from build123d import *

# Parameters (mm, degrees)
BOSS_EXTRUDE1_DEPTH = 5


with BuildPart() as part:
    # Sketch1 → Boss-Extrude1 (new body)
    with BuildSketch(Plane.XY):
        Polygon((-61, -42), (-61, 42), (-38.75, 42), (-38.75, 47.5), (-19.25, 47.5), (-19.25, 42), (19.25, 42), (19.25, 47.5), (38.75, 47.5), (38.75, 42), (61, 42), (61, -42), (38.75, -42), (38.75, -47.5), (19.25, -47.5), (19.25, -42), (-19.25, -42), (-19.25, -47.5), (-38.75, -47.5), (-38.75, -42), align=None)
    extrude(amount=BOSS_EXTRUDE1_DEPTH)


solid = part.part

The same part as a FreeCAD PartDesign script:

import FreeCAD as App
import Part
import Sketcher

doc = App.newDocument("Part")
body = doc.addObject("PartDesign::Body", "Body")

sketch1 = body.newObject("Sketcher::SketchObject", "Sketch")
sketch1.AttachmentSupport = (doc.getObject("XY_Plane"), [""])
sketch1.MapMode = "FlatFace"
sketch1.addGeometry(Part.LineSegment(App.Vector(-61, 42, 0), App.Vector(-61, -42, 0)), False)
sketch1.addGeometry(Part.LineSegment(App.Vector(-61, -42, 0), App.Vector(-38.75, -42, 0)), False)
sketch1.addGeometry(Part.LineSegment(App.Vector(-38.75, -42, 0), App.Vector(-38.75, -47.5, 0)), False)
sketch1.addGeometry(Part.LineSegment(App.Vector(-38.75, -47.5, 0), App.Vector(-19.25, -47.5, 0)), False)
sketch1.addGeometry(Part.LineSegment(App.Vector(-19.25, -47.5, 0), App.Vector(-19.25, -42, 0)), False)
sketch1.addGeometry(Part.LineSegment(App.Vector(-19.25, -42, 0), App.Vector(19.25, -42, 0)), False)
sketch1.addGeometry(Part.LineSegment(App.Vector(19.25, -42, 0), App.Vector(19.25, -47.5, 0)), False)
sketch1.addGeometry(Part.LineSegment(App.Vector(19.25, -47.5, 0), App.Vector(38.75, -47.5, 0)), False)
sketch1.addGeometry(Part.LineSegment(App.Vector(38.75, -47.5, 0), App.Vector(38.75, -42, 0)), False)
sketch1.addGeometry(Part.LineSegment(App.Vector(38.75, -42, 0), App.Vector(61, -42, 0)), False)
sketch1.addGeometry(Part.LineSegment(App.Vector(61, -42, 0), App.Vector(61, 42, 0)), False)
sketch1.addGeometry(Part.LineSegment(App.Vector(61, 42, 0), App.Vector(38.75, 42, 0)), False)
sketch1.addGeometry(Part.LineSegment(App.Vector(38.75, 42, 0), App.Vector(38.75, 47.5, 0)), False)
sketch1.addGeometry(Part.LineSegment(App.Vector(38.75, 47.5, 0), App.Vector(19.25, 47.5, 0)), False)
sketch1.addGeometry(Part.LineSegment(App.Vector(19.25, 47.5, 0), App.Vector(19.25, 42, 0)), False)
sketch1.addGeometry(Part.LineSegment(App.Vector(19.25, 42, 0), App.Vector(-19.25, 42, 0)), False)
sketch1.addGeometry(Part.LineSegment(App.Vector(-19.25, 42, 0), App.Vector(-19.25, 47.5, 0)), False)
sketch1.addGeometry(Part.LineSegment(App.Vector(-19.25, 47.5, 0), App.Vector(-38.75, 47.5, 0)), False)
sketch1.addGeometry(Part.LineSegment(App.Vector(-38.75, 47.5, 0), App.Vector(-38.75, 42, 0)), False)
sketch1.addGeometry(Part.LineSegment(App.Vector(-38.75, 42, 0), App.Vector(-61, 42, 0)), False)
sketch1.addConstraint(Sketcher.Constraint("Coincident", 0, 2, 1, 1))
sketch1.addConstraint(Sketcher.Constraint("Coincident", 1, 2, 2, 1))
sketch1.addConstraint(Sketcher.Constraint("Coincident", 2, 2, 3, 1))
sketch1.addConstraint(Sketcher.Constraint("Coincident", 3, 2, 4, 1))
sketch1.addConstraint(Sketcher.Constraint("Coincident", 4, 2, 5, 1))
sketch1.addConstraint(Sketcher.Constraint("Coincident", 5, 2, 6, 1))
sketch1.addConstraint(Sketcher.Constraint("Coincident", 6, 2, 7, 1))
sketch1.addConstraint(Sketcher.Constraint("Coincident", 7, 2, 8, 1))
sketch1.addConstraint(Sketcher.Constraint("Coincident", 8, 2, 9, 1))
sketch1.addConstraint(Sketcher.Constraint("Coincident", 9, 2, 10, 1))
sketch1.addConstraint(Sketcher.Constraint("Coincident", 10, 2, 11, 1))
sketch1.addConstraint(Sketcher.Constraint("Coincident", 11, 2, 12, 1))
sketch1.addConstraint(Sketcher.Constraint("Coincident", 12, 2, 13, 1))
sketch1.addConstraint(Sketcher.Constraint("Coincident", 13, 2, 14, 1))
sketch1.addConstraint(Sketcher.Constraint("Coincident", 14, 2, 15, 1))
sketch1.addConstraint(Sketcher.Constraint("Coincident", 15, 2, 16, 1))
sketch1.addConstraint(Sketcher.Constraint("Coincident", 16, 2, 17, 1))
sketch1.addConstraint(Sketcher.Constraint("Coincident", 17, 2, 18, 1))
sketch1.addConstraint(Sketcher.Constraint("Coincident", 18, 2, 19, 1))
sketch1.addConstraint(Sketcher.Constraint("Coincident", 19, 2, 0, 1))
sketch1.addConstraint(Sketcher.Constraint("Vertical", 0))
sketch1.addConstraint(Sketcher.Constraint("Horizontal", 1))
sketch1.addConstraint(Sketcher.Constraint("Vertical", 2))
sketch1.addConstraint(Sketcher.Constraint("Horizontal", 3))
sketch1.addConstraint(Sketcher.Constraint("Vertical", 4))
sketch1.addConstraint(Sketcher.Constraint("Horizontal", 5))
sketch1.addConstraint(Sketcher.Constraint("Vertical", 6))
sketch1.addConstraint(Sketcher.Constraint("Horizontal", 7))
sketch1.addConstraint(Sketcher.Constraint("Vertical", 8))
sketch1.addConstraint(Sketcher.Constraint("Horizontal", 9))
sketch1.addConstraint(Sketcher.Constraint("Vertical", 10))
sketch1.addConstraint(Sketcher.Constraint("Horizontal", 11))
sketch1.addConstraint(Sketcher.Constraint("Vertical", 12))
sketch1.addConstraint(Sketcher.Constraint("Horizontal", 13))
sketch1.addConstraint(Sketcher.Constraint("Vertical", 14))
sketch1.addConstraint(Sketcher.Constraint("Horizontal", 15))
sketch1.addConstraint(Sketcher.Constraint("Vertical", 16))
sketch1.addConstraint(Sketcher.Constraint("Horizontal", 17))
sketch1.addConstraint(Sketcher.Constraint("Vertical", 18))
sketch1.addConstraint(Sketcher.Constraint("Horizontal", 19))
sketch1.addConstraint(Sketcher.Constraint("Symmetric", 0, 2, 10, 2, -1, 1))
sketch1.addConstraint(Sketcher.Constraint("Symmetric", 2, 2, 12, 2, -1, 1))
sketch1.addConstraint(Sketcher.Constraint("Symmetric", 4, 2, 14, 2, -1, 1))
sketch1.addConstraint(Sketcher.Constraint("Symmetric", 6, 2, 16, 2, -1, 1))
sketch1.addConstraint(Sketcher.Constraint("Symmetric", 8, 2, 18, 2, -1, 1))
sketch1.addConstraint(Sketcher.Constraint("Symmetric", 3, 2, 6, 2, -2))
sketch1.addConstraint(Sketcher.Constraint("Symmetric", 1, 2, 8, 2, -2))
sketch1.addConstraint(Sketcher.Constraint("Horizontal", 1, 2, 4, 2))
sketch1.addConstraint(Sketcher.Constraint("DistanceY", 0, 2, 0, 1, 84.0))
sketch1.addConstraint(Sketcher.Constraint("DistanceX", 3, 1, 3, 2, 19.5))
sketch1.addConstraint(Sketcher.Constraint("DistanceX", 5, 1, 5, 2, 38.5))
sketch1.addConstraint(Sketcher.Constraint("DistanceY", 2, 2, 2, 1, 5.5))
sketch1.addConstraint(Sketcher.Constraint("DistanceX", 0, 2, -1, 1, 61.0))
pad1 = body.newObject("PartDesign::Pad", "Pad")
pad1.Profile = sketch1
pad1.Length = 5

doc.recompute()
